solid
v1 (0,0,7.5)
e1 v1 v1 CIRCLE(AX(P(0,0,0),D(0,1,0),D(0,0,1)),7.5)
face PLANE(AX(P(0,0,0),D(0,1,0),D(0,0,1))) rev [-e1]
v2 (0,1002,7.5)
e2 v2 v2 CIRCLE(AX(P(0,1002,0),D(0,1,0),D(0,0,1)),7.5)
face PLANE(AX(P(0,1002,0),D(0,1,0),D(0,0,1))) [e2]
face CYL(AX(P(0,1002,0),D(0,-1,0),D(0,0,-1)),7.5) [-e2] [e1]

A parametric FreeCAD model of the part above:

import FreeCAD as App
import Part
import Sketcher

doc = App.newDocument("Part")
body = doc.addObject("PartDesign::Body", "Body")

# Sketch on XZ plane
sketch1 = body.newObject("Sketcher::SketchObject", "Sketch")
sketch1.AttachmentSupport = (doc.getObject("XZ_Plane"), [""])
sketch1.MapMode = "FlatFace"
sketch1.addGeometry(Part.Circle(App.Vector(0, 0, 0), App.Vector(0, 0, 1), 8), False)
sketch1.addConstraint([
    Sketcher.Constraint("Coincident", 0, 3, -1, 1),
    Sketcher.Constraint("Diameter", 0, 15.0),
])
pad1 = body.newObject("PartDesign::Pad", "Pad")
pad1.Profile = sketch1
pad1.Length = 1002
pad1.Reversed = True

doc.recompute()
